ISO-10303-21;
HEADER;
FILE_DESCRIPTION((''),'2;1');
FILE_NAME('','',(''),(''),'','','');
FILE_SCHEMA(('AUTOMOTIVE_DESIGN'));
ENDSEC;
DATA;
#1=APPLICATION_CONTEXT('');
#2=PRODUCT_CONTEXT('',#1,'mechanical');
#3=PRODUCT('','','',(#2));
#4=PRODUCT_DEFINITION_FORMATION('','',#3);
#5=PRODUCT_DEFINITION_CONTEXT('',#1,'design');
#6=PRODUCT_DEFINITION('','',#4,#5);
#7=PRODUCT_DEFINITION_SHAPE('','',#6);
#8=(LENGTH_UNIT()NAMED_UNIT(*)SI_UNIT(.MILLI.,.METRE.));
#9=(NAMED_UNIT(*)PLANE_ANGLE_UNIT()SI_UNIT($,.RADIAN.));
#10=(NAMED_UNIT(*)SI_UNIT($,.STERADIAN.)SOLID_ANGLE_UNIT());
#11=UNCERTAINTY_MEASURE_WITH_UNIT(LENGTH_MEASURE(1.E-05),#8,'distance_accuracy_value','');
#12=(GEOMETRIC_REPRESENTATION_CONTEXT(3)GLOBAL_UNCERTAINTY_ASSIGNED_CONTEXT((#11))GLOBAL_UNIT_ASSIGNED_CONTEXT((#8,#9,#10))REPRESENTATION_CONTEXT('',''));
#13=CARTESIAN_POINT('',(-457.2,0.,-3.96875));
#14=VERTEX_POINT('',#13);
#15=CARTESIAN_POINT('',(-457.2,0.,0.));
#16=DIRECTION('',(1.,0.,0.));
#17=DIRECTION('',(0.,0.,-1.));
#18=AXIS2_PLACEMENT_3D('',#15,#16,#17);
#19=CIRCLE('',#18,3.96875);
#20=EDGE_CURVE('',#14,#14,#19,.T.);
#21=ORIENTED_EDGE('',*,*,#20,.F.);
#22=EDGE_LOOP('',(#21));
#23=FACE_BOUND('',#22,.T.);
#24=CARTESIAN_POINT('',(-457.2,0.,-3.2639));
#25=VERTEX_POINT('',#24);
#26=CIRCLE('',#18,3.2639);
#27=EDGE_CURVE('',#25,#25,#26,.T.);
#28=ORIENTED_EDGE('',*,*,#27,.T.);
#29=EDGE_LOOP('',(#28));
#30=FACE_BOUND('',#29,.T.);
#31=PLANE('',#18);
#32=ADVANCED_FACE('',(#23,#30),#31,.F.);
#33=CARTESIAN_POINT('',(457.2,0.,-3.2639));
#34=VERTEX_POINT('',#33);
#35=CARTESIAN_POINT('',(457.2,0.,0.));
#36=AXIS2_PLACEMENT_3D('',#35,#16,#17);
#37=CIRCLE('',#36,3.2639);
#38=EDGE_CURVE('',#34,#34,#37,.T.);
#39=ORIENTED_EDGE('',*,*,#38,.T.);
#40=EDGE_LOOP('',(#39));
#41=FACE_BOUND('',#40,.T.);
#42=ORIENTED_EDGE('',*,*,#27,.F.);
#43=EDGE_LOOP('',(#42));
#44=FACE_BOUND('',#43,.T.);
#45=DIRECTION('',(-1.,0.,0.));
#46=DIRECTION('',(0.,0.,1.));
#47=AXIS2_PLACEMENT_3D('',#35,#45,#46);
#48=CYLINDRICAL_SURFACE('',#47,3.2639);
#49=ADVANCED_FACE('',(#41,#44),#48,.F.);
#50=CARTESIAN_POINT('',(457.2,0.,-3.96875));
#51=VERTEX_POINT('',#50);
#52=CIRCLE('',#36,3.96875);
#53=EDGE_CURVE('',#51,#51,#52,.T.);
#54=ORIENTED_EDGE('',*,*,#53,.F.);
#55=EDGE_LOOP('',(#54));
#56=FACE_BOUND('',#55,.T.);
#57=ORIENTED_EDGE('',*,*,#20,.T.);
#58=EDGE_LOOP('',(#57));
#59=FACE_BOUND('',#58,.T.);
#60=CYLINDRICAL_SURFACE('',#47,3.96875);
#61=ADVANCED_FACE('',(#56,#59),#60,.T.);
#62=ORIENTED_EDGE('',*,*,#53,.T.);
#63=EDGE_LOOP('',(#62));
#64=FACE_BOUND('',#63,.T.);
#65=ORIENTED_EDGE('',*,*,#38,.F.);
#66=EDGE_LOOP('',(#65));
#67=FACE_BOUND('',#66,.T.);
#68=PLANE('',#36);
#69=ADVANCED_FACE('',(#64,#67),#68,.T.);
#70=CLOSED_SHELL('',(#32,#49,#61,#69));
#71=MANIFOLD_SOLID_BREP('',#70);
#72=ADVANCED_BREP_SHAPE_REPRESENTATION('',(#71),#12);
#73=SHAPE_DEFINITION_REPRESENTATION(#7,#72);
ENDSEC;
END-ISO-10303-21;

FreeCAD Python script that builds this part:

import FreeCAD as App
import Part
import Sketcher

V = App.Vector
Q = App.Units.Quantity

doc = App.newDocument("Part")
body = doc.addObject("PartDesign::Body", "Body")

# Sketch on YZ plane
sketch1 = body.newObject("Sketcher::SketchObject", "Sketch")
sketch1.AttachmentSupport = (doc.getObject("YZ_Plane"), [""])
sketch1.MapMode = "FlatFace"
sketch1.addGeometry([
    Part.Circle(V(0, 0, 0), V(0, 0, 1), 4),
    Part.Circle(V(0, 0, 0), V(0, 0, 1), 3.3),
], False)
sketch1.addConstraint([
    Sketcher.Constraint("Coincident", 0, 3, -1, 1),
    Sketcher.Constraint("Coincident", 1, 3, -1, 1),
    Sketcher.Constraint("Diameter", 0, Q("0.3125 in")),
    Sketcher.Constraint("Diameter", 1, Q("0.257 in")),
])
pad1 = body.newObject("PartDesign::Pad", "Pad")
pad1.Profile = sketch1
pad1.Length = Q("36 in")
pad1.Midplane = True

doc.recompute()
